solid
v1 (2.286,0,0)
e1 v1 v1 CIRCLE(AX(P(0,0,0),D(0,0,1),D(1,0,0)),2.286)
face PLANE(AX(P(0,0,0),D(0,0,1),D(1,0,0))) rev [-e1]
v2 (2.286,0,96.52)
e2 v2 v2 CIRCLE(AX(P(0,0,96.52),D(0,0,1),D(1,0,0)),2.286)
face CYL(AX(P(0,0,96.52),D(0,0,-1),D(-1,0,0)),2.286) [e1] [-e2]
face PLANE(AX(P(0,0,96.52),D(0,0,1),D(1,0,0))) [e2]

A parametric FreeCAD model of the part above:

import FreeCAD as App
import Part
import Sketcher
from FreeCAD import Vector
Q = App.Units.Quantity

doc = App.newDocument("Part")
body = doc.addObject("PartDesign::Body", "Body")

# Sketch on XY plane
sketch1 = doc.addObject("Sketcher::SketchObject", "Sketch")
body.addObject(sketch1)
sketch1.AttachmentSupport = (doc.XY_Plane, [""])
sketch1.MapMode = "FlatFace"
sketch1.addGeometry(Part.Circle(Vector(0, 0, 0), Vector(0, 0, 1), 2.3), False)
sketch1.addConstraint(Sketcher.Constraint("Coincident", 0, 3, -1, 1))
sketch1.addConstraint(Sketcher.Constraint("Diameter", 0, Q("0.18 in")))
pad1 = doc.addObject("PartDesign::Pad", "Pad")
body.addObject(pad1)
pad1.Profile = sketch1
pad1.Length = Q("3.8 in")

doc.recompute()
